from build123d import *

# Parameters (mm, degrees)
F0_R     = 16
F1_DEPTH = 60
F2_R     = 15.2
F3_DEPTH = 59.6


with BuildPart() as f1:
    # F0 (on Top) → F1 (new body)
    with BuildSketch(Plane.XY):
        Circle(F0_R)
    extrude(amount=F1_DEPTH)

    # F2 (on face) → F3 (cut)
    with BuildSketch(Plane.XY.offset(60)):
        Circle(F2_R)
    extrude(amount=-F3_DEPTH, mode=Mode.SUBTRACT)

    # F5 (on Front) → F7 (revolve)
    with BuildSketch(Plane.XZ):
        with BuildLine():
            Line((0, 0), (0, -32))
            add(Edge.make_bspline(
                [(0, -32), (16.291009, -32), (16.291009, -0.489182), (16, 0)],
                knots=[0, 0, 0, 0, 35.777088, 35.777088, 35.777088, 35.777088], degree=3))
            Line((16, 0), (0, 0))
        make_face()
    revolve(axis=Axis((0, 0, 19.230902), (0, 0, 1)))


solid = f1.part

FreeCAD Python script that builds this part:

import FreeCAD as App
import Part
import Sketcher

V = App.Vector

doc = App.newDocument("Part")
body = doc.addObject("PartDesign::Body", "Body")

sketch1 = body.newObject("Sketcher::SketchObject", "Sketch")
sketch1.AttachmentSupport = (doc.getObject("XY_Plane"), [""])
sketch1.MapMode = "FlatFace"
sketch1.addGeometry(Part.Circle(V(0, 0, 0), V(0, 0, 1), 16), False)
sketch1.addConstraint([
    Sketcher.Constraint("Coincident", 0, 3, -1, 1),
    Sketcher.Constraint("Diameter", 0, 32.0),
])
pad1 = body.newObject("PartDesign::Pad", "Pad")
pad1.Profile = sketch1
pad1.Length = 60

sketch2 = body.newObject("Sketcher::SketchObject", "Sketch001")
sketch2.AttachmentSupport = (doc.getObject("XY_Plane"), [""])
sketch2.MapMode = "FlatFace"
sketch2.AttachmentOffset = App.Placement(V(0, 0, 60), App.Rotation())
sketch2.addGeometry(Part.Circle(V(0, 0, 0), V(0, 0, 1), 15.2), False)
sketch2.addConstraint([
    Sketcher.Constraint("Coincident", 0, 3, -1, 1),
    Sketcher.Constraint("Diameter", 0, 30.4),
])
pocket1 = body.newObject("PartDesign::Pocket", "Pocket")
pocket1.Profile = sketch2
pocket1.Length = 59.6

sketch3 = body.newObject("Sketcher::SketchObject", "Sketch002")
sketch3.AttachmentSupport = (doc.getObject("XZ_Plane"), [""])
sketch3.MapMode = "FlatFace"
sketch3.addGeometry([
    Part.LineSegment(V(0, 0, 0), V(0, -32, 0)),
    Part.BSplineCurve([V(0, -32, 0), V(16.291009, -32, 0), V(16.291009, -0.489182, 0), V(16, 0, 0)], [4, 4], [0, 35.777088], False, 3, [1, 1, 1, 1], False),
    Part.LineSegment(V(16, 0, 0), V(0, 0, 0)),
], False)
sketch3.addConstraint([
    Sketcher.Constraint("Block", 1),
    Sketcher.Constraint("Coincident", 0, 2, 1, 1),
    Sketcher.Constraint("Coincident", 1, 2, 2, 1),
    Sketcher.Constraint("Coincident", 2, 2, 0, 1),
    Sketcher.Constraint("Vertical", 0),
    Sketcher.Constraint("Horizontal", 2),
])
revolution = body.newObject("PartDesign::Revolution", "Revolution")
revolution.Profile = sketch3
revolution.ReferenceAxis = (sketch3, ["V_Axis"])
revolution.Angle = 360

doc.recompute()
